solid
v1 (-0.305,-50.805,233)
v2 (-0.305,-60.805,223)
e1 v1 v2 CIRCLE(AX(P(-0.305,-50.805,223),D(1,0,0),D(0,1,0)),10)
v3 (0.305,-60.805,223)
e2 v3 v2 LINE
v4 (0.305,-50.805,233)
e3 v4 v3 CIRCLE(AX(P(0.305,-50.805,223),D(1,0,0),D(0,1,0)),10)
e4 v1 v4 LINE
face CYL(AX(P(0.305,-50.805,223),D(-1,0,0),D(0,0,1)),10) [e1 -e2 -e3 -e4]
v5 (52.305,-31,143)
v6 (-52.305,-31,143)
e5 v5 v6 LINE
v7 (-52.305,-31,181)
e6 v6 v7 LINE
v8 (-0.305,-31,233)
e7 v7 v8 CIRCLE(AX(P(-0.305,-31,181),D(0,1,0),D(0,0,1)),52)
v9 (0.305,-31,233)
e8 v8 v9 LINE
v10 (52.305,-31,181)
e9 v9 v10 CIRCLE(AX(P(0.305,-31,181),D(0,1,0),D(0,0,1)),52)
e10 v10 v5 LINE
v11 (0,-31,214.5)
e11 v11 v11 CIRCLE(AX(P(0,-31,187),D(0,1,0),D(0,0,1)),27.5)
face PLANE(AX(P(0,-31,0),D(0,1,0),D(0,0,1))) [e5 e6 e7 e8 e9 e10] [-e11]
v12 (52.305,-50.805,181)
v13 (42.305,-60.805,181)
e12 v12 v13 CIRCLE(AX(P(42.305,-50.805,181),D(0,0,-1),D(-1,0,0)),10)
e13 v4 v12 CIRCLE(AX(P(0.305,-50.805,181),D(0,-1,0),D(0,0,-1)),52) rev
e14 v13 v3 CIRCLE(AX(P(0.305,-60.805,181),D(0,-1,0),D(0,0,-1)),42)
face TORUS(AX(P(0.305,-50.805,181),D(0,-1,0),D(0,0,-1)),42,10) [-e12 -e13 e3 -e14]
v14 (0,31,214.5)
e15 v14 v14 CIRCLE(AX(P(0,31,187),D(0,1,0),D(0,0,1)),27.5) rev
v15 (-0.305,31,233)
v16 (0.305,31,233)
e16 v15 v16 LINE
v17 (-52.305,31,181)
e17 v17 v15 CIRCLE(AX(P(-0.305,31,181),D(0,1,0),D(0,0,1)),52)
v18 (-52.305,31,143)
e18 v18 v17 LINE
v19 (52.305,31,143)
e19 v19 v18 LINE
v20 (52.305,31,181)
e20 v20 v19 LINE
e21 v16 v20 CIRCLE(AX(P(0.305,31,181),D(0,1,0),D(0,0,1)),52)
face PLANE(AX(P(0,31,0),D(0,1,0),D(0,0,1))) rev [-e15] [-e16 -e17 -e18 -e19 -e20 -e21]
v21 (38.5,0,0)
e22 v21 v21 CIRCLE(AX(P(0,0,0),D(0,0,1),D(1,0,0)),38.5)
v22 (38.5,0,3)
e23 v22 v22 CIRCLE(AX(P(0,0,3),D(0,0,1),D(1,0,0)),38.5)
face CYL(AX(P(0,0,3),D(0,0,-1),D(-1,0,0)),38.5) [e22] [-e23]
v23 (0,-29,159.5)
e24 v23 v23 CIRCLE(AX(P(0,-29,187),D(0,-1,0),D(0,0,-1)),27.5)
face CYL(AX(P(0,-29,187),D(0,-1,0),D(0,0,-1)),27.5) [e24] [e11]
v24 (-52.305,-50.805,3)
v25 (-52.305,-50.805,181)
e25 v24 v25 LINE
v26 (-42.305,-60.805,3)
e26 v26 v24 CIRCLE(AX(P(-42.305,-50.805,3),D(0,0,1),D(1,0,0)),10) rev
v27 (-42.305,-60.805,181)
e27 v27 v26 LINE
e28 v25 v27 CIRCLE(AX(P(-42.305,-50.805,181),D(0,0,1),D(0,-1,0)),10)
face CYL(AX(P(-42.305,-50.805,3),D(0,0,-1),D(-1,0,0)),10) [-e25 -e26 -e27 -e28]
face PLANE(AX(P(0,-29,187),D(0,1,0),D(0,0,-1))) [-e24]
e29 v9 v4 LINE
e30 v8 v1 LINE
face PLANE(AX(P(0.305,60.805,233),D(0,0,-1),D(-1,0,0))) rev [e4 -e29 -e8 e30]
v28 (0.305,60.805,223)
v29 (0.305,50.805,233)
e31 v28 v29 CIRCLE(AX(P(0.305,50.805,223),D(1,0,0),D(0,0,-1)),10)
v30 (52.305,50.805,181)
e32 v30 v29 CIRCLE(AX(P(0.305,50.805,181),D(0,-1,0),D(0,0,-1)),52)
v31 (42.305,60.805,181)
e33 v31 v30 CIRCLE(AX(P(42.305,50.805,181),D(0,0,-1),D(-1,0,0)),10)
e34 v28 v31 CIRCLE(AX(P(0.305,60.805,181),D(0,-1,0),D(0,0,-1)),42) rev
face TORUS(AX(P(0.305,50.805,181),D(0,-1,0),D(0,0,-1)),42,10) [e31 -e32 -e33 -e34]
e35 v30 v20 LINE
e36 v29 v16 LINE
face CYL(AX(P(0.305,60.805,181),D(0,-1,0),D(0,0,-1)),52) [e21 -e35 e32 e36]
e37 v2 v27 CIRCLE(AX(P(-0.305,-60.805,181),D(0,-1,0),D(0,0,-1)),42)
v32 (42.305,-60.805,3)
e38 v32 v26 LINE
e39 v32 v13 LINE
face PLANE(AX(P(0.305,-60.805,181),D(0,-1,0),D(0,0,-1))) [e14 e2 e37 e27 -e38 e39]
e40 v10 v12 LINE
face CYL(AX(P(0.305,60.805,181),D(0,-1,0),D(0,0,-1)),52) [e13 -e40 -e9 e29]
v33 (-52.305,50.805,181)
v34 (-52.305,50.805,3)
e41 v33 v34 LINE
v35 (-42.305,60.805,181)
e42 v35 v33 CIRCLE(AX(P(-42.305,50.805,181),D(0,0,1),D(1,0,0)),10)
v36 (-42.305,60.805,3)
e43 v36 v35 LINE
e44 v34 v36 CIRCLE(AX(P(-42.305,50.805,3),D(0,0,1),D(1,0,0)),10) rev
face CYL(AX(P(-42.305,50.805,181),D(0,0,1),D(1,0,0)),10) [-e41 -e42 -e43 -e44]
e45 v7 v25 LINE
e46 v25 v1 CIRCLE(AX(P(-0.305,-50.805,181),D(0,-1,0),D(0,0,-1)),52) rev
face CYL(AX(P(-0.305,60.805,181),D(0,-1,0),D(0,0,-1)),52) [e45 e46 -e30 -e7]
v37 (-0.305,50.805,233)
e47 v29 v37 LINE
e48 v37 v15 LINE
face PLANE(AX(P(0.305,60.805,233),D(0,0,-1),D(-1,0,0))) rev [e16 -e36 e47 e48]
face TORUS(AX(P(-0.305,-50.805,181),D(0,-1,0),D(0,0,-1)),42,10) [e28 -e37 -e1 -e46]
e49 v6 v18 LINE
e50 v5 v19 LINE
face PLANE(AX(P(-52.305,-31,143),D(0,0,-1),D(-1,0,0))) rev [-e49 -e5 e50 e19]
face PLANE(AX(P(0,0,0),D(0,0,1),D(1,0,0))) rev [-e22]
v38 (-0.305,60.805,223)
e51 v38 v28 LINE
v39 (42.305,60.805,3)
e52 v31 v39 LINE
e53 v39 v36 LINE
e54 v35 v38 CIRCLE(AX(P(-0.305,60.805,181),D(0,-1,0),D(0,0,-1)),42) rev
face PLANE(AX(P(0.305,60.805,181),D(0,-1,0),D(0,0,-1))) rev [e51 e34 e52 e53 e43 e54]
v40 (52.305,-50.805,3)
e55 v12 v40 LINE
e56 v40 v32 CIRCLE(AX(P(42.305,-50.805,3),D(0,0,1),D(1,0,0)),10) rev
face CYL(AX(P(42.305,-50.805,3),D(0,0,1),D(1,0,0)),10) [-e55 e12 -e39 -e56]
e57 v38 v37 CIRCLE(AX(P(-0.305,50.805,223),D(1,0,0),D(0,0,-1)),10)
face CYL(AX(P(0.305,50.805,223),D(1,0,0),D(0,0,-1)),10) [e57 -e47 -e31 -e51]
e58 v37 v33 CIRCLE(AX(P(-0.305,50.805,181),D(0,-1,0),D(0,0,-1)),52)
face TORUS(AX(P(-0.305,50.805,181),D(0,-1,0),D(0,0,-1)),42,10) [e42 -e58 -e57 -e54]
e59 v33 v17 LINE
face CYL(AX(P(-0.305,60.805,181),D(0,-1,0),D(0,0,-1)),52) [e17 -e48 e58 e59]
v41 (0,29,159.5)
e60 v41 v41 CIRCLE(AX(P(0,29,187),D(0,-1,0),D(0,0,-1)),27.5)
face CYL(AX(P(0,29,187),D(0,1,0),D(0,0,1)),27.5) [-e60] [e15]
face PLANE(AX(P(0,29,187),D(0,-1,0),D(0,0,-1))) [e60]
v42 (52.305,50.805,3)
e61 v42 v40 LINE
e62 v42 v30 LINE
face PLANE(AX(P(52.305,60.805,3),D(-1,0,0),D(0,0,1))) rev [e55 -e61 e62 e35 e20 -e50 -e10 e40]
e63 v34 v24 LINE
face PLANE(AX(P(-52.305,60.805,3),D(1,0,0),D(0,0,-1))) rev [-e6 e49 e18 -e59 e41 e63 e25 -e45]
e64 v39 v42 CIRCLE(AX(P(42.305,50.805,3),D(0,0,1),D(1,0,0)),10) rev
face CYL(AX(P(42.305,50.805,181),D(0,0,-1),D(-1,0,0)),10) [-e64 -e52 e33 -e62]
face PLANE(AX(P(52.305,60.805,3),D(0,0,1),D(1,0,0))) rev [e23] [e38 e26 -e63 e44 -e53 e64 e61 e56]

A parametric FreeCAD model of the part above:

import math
import FreeCAD as App
import Part
import Sketcher
from FreeCAD import Vector
Q = App.Units.Quantity


def edges_at(feature, points):
    """Names of the edges that pass closest to the given points."""
    edges = feature.Shape.Edges
    near = lambda p: min(range(len(edges)), key=lambda i: edges[i].distToShape(Part.Vertex(*p))[0])
    return sorted({f"Edge{near(p) + 1}" for p in points})

doc = App.newDocument("Part")
body = doc.addObject("PartDesign::Body", "Body")

# Sketch on XY plane
sketch1 = doc.addObject("Sketcher::SketchObject", "Sketch")
body.addObject(sketch1)
sketch1.AttachmentSupport = (doc.XY_Plane, [""])
sketch1.MapMode = "FlatFace"
sketch1.addGeometry(Part.Circle(Vector(0, 0, 0), Vector(0, 0, 1), 38), False)
sketch1.addConstraint([
    Sketcher.Constraint("Coincident", 0, 3, -1, 1),
    Sketcher.Constraint("Diameter", 0, Q("77 mm")),
])
pad1 = doc.addObject("PartDesign::Pad", "Pad")
body.addObject(pad1)
pad1.Profile = sketch1
pad1.Length = 3

# Sketch on XZ plane
sketch2 = doc.addObject("Sketcher::SketchObject", "Sketch001")
body.addObject(sketch2)
sketch2.AttachmentSupport = (doc.XZ_Plane, [""])
sketch2.MapMode = "FlatFace"
sketch2.addGeometry([
    Part.LineSegment(Vector(52.3, 3, 0), Vector(-52.3, 3, 0)),  # 0
    Part.LineSegment(Vector(-52.3, 3, 0), Vector(-52.3, 181, 0)),  # 1
    Part.ArcOfCircle(Part.Circle(Vector(-0.3, 181, 0), Vector(0, 0, 1), 52), math.radians(90), math.radians(180)),  # 2
    Part.LineSegment(Vector(-0.3, 233, 0), Vector(0.3, 233, 0)),  # 3
    Part.ArcOfCircle(Part.Circle(Vector(0.3, 181, 0), Vector(0, 0, 1), 52), math.radians(0), math.radians(90)),  # 4
    Part.LineSegment(Vector(52.3, 181, 0), Vector(52.3, 3, 0)),  # 5
], False)
sketch2.addConstraint([
    Sketcher.Constraint("Coincident", 0, 2, 1, 1),
    Sketcher.Constraint("Tangent", 1, 2, 2, 2),
    Sketcher.Constraint("Tangent", 2, 1, 3, 1),
    Sketcher.Constraint("Tangent", 3, 2, 4, 2),
    Sketcher.Constraint("Tangent", 4, 1, 5, 1),
    Sketcher.Constraint("Coincident", 5, 2, 0, 1),
    Sketcher.Constraint("Horizontal", 0),
    Sketcher.Constraint("Vertical", 1),
    Sketcher.Constraint("Horizontal", 3),
    Sketcher.Constraint("Vertical", 5),
    Sketcher.Constraint("Equal", 2, 4),
    Sketcher.Constraint("Radius", 2, Q("52 mm")),
    Sketcher.Constraint("DistanceY", 1, 1, 1, 2, Q("178 mm")),
    Sketcher.Constraint("DistanceY", -1, 1, 2, 3, Q("181 mm")),
    Sketcher.Constraint("DistanceX", 0, 2, 0, 1, Q("104.61 mm")),
    Sketcher.Constraint("DistanceX", 2, 3, -1, 1, Q("0.305 mm")),
])
pad2 = doc.addObject("PartDesign::Pad", "Pad001")
body.addObject(pad2)
pad2.Profile = sketch2
pad2.Length = 121.61
pad2.Midplane = True
doc.recompute()

fillet = doc.addObject("PartDesign::Fillet", "Fillet")
body.addObject(fillet)
fillet.Base = (pad2, edges_at(pad2, [
    (52.305, -60.805, 92),
    (-52.305, -60.805, 92),
    (-37.075, -60.805, 217.77),
    (0, -60.805, 233),
    (37.075, -60.805, 217.77),
    (52.305, 60.805, 92),
    (-52.305, 60.805, 92),
    (-37.075, 60.805, 217.77),
    (0, 60.805, 233),
    (37.075, 60.805, 217.77),
]))
fillet.Radius = 10

# Sketch on XZ plane
sketch3 = doc.addObject("Sketcher::SketchObject", "Sketch002")
body.addObject(sketch3)
sketch3.AttachmentSupport = (doc.XZ_Plane, [""])
sketch3.MapMode = "FlatFace"
sketch3.addGeometry([
    Part.LineSegment(Vector(-52, 143, 0), Vector(-52, 233, 0)),
    Part.LineSegment(Vector(-52, 233, 0), Vector(52, 233, 0)),
    Part.LineSegment(Vector(52, 233, 0), Vector(52, 143, 0)),
    Part.LineSegment(Vector(52, 143, 0), Vector(-52, 143, 0)),
], False)
sketch3.addConstraint([
    Sketcher.Constraint("Coincident", 0, 2, 1, 1),
    Sketcher.Constraint("Coincident", 1, 2, 2, 1),
    Sketcher.Constraint("Coincident", 2, 2, 3, 1),
    Sketcher.Constraint("Coincident", 3, 2, 0, 1),
    Sketcher.Constraint("Vertical", 0),
    Sketcher.Constraint("Horizontal", 1),
    Sketcher.Constraint("Vertical", 2),
    Sketcher.Constraint("Horizontal", 3),
    Sketcher.Constraint("DistanceY", 0, 1, 0, 2, Q("90 mm")),
    Sketcher.Constraint("DistanceY", -1, 1, 0, 2, Q("233 mm")),
    Sketcher.Constraint("DistanceX", 1, 1, 1, 2, Q("104.61 mm")),
    Sketcher.Constraint("DistanceX", 0, 2, -1, 1, Q("52.305 mm")),
])
pocket1 = doc.addObject("PartDesign::Pocket", "Pocket")
body.addObject(pocket1)
pocket1.Profile = sketch3
pocket1.Length = 62
pocket1.Midplane = True

# Sketch on XZ plane
sketch4 = doc.addObject("Sketcher::SketchObject", "Sketch003")
body.addObject(sketch4)
sketch4.AttachmentSupport = (doc.XZ_Plane, [""])
sketch4.MapMode = "FlatFace"
sketch4.AttachmentOffset = App.Placement(Vector(0, 0, -31), App.Rotation())
sketch4.addGeometry(Part.Circle(Vector(0, 187, 0), Vector(0, 0, 1), 28), False)
sketch4.addConstraint([
    Sketcher.Constraint("PointOnObject", 0, 3, -2),
    Sketcher.Constraint("Diameter", 0, Q("55 mm")),
    Sketcher.Constraint("DistanceY", -1, 1, 0, 3, Q("187 mm")),
])
pad3 = doc.addObject("PartDesign::Pad", "Pad002")
body.addObject(pad3)
pad3.Profile = sketch4
pad3.Length = 2
doc.recompute()

mirrored = doc.addObject("PartDesign::Mirrored", "Mirrored")
body.addObject(mirrored)
mirrored.Originals = [pad3]
mirrored.MirrorPlane = (doc.XZ_Plane, [""])
body.Tip = mirrored

doc.recompute()
